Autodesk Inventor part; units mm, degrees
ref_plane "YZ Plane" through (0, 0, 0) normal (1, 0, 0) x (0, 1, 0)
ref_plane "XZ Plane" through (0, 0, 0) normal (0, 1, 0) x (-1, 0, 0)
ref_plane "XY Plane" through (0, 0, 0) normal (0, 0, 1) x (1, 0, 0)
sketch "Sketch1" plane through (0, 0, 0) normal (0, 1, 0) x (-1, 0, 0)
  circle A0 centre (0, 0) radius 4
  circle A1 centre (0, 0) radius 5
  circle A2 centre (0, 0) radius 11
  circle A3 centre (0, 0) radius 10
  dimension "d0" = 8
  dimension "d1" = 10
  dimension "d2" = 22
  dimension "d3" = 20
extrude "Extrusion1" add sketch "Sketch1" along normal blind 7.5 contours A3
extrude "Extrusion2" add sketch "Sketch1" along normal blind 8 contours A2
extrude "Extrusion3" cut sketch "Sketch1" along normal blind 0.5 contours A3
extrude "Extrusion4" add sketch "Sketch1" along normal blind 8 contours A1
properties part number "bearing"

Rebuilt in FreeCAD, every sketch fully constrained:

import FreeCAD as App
import Part
import Sketcher

V = App.Vector

doc = App.newDocument("Part")
body = doc.addObject("PartDesign::Body", "Body")

sketch1 = body.newObject("Sketcher::SketchObject", "Sketch")
sketch1.AttachmentSupport = (doc.getObject("XZ_Plane"), [""])
sketch1.MapMode = "FlatFace"
sketch1.addGeometry([
    Part.Circle(V(0, 0, 0), V(0, 0, 1), 10),
    Part.Circle(V(0, 0, 0), V(0, 0, 1), 5),
], False)
sketch1.addConstraint([
    Sketcher.Constraint("Coincident", 0, 3, -1, 1),
    Sketcher.Constraint("Coincident", 1, 3, -1, 1),
    Sketcher.Constraint("Diameter", 0, 20.0),
    Sketcher.Constraint("Diameter", 1, 10.0),
])
pad1 = body.newObject("PartDesign::Pad", "Pad")
pad1.Profile = sketch1
pad1.Length = 7.5
pad1.Reversed = True

sketch2 = body.newObject("Sketcher::SketchObject", "Sketch001")
sketch2.AttachmentSupport = (doc.getObject("XZ_Plane"), [""])
sketch2.MapMode = "FlatFace"
sketch2.addGeometry([
    Part.Circle(V(0, 0, 0), V(0, 0, 1), 11),
    Part.Circle(V(0, 0, 0), V(0, 0, 1), 10),
], False)
sketch2.addConstraint([
    Sketcher.Constraint("Coincident", 0, 3, -1, 1),
    Sketcher.Constraint("Coincident", 1, 3, -1, 1),
    Sketcher.Constraint("Diameter", 0, 22.0),
    Sketcher.Constraint("Diameter", 1, 20.0),
])
pad2 = body.newObject("PartDesign::Pad", "Pad001")
pad2.Profile = sketch2
pad2.Length = 8
pad2.Reversed = True

sketch3 = body.newObject("Sketcher::SketchObject", "Sketch002")
sketch3.AttachmentSupport = (doc.getObject("XZ_Plane"), [""])
sketch3.MapMode = "FlatFace"
sketch3.addGeometry([
    Part.Circle(V(0, 0, 0), V(0, 0, 1), 10),
    Part.Circle(V(0, 0, 0), V(0, 0, 1), 5),
], False)
sketch3.addConstraint([
    Sketcher.Constraint("Coincident", 0, 3, -1, 1),
    Sketcher.Constraint("Coincident", 1, 3, -1, 1),
    Sketcher.Constraint("Diameter", 0, 20.0),
    Sketcher.Constraint("Diameter", 1, 10.0),
])
pocket1 = body.newObject("PartDesign::Pocket", "Pocket")
pocket1.Profile = sketch3
pocket1.Length = 0.5

sketch4 = body.newObject("Sketcher::SketchObject", "Sketch003")
sketch4.AttachmentSupport = (doc.getObject("XZ_Plane"), [""])
sketch4.MapMode = "FlatFace"
sketch4.addGeometry([
    Part.Circle(V(0, 0, 0), V(0, 0, 1), 5),
    Part.Circle(V(0, 0, 0), V(0, 0, 1), 4),
], False)
sketch4.addConstraint([
    Sketcher.Constraint("Coincident", 0, 3, -1, 1),
    Sketcher.Constraint("Coincident", 1, 3, -1, 1),
    Sketcher.Constraint("Diameter", 0, 10.0),
    Sketcher.Constraint("Diameter", 1, 8.0),
])
pad3 = body.newObject("PartDesign::Pad", "Pad002")
pad3.Profile = sketch4
pad3.Length = 8
pad3.Reversed = True

doc.recompute()
